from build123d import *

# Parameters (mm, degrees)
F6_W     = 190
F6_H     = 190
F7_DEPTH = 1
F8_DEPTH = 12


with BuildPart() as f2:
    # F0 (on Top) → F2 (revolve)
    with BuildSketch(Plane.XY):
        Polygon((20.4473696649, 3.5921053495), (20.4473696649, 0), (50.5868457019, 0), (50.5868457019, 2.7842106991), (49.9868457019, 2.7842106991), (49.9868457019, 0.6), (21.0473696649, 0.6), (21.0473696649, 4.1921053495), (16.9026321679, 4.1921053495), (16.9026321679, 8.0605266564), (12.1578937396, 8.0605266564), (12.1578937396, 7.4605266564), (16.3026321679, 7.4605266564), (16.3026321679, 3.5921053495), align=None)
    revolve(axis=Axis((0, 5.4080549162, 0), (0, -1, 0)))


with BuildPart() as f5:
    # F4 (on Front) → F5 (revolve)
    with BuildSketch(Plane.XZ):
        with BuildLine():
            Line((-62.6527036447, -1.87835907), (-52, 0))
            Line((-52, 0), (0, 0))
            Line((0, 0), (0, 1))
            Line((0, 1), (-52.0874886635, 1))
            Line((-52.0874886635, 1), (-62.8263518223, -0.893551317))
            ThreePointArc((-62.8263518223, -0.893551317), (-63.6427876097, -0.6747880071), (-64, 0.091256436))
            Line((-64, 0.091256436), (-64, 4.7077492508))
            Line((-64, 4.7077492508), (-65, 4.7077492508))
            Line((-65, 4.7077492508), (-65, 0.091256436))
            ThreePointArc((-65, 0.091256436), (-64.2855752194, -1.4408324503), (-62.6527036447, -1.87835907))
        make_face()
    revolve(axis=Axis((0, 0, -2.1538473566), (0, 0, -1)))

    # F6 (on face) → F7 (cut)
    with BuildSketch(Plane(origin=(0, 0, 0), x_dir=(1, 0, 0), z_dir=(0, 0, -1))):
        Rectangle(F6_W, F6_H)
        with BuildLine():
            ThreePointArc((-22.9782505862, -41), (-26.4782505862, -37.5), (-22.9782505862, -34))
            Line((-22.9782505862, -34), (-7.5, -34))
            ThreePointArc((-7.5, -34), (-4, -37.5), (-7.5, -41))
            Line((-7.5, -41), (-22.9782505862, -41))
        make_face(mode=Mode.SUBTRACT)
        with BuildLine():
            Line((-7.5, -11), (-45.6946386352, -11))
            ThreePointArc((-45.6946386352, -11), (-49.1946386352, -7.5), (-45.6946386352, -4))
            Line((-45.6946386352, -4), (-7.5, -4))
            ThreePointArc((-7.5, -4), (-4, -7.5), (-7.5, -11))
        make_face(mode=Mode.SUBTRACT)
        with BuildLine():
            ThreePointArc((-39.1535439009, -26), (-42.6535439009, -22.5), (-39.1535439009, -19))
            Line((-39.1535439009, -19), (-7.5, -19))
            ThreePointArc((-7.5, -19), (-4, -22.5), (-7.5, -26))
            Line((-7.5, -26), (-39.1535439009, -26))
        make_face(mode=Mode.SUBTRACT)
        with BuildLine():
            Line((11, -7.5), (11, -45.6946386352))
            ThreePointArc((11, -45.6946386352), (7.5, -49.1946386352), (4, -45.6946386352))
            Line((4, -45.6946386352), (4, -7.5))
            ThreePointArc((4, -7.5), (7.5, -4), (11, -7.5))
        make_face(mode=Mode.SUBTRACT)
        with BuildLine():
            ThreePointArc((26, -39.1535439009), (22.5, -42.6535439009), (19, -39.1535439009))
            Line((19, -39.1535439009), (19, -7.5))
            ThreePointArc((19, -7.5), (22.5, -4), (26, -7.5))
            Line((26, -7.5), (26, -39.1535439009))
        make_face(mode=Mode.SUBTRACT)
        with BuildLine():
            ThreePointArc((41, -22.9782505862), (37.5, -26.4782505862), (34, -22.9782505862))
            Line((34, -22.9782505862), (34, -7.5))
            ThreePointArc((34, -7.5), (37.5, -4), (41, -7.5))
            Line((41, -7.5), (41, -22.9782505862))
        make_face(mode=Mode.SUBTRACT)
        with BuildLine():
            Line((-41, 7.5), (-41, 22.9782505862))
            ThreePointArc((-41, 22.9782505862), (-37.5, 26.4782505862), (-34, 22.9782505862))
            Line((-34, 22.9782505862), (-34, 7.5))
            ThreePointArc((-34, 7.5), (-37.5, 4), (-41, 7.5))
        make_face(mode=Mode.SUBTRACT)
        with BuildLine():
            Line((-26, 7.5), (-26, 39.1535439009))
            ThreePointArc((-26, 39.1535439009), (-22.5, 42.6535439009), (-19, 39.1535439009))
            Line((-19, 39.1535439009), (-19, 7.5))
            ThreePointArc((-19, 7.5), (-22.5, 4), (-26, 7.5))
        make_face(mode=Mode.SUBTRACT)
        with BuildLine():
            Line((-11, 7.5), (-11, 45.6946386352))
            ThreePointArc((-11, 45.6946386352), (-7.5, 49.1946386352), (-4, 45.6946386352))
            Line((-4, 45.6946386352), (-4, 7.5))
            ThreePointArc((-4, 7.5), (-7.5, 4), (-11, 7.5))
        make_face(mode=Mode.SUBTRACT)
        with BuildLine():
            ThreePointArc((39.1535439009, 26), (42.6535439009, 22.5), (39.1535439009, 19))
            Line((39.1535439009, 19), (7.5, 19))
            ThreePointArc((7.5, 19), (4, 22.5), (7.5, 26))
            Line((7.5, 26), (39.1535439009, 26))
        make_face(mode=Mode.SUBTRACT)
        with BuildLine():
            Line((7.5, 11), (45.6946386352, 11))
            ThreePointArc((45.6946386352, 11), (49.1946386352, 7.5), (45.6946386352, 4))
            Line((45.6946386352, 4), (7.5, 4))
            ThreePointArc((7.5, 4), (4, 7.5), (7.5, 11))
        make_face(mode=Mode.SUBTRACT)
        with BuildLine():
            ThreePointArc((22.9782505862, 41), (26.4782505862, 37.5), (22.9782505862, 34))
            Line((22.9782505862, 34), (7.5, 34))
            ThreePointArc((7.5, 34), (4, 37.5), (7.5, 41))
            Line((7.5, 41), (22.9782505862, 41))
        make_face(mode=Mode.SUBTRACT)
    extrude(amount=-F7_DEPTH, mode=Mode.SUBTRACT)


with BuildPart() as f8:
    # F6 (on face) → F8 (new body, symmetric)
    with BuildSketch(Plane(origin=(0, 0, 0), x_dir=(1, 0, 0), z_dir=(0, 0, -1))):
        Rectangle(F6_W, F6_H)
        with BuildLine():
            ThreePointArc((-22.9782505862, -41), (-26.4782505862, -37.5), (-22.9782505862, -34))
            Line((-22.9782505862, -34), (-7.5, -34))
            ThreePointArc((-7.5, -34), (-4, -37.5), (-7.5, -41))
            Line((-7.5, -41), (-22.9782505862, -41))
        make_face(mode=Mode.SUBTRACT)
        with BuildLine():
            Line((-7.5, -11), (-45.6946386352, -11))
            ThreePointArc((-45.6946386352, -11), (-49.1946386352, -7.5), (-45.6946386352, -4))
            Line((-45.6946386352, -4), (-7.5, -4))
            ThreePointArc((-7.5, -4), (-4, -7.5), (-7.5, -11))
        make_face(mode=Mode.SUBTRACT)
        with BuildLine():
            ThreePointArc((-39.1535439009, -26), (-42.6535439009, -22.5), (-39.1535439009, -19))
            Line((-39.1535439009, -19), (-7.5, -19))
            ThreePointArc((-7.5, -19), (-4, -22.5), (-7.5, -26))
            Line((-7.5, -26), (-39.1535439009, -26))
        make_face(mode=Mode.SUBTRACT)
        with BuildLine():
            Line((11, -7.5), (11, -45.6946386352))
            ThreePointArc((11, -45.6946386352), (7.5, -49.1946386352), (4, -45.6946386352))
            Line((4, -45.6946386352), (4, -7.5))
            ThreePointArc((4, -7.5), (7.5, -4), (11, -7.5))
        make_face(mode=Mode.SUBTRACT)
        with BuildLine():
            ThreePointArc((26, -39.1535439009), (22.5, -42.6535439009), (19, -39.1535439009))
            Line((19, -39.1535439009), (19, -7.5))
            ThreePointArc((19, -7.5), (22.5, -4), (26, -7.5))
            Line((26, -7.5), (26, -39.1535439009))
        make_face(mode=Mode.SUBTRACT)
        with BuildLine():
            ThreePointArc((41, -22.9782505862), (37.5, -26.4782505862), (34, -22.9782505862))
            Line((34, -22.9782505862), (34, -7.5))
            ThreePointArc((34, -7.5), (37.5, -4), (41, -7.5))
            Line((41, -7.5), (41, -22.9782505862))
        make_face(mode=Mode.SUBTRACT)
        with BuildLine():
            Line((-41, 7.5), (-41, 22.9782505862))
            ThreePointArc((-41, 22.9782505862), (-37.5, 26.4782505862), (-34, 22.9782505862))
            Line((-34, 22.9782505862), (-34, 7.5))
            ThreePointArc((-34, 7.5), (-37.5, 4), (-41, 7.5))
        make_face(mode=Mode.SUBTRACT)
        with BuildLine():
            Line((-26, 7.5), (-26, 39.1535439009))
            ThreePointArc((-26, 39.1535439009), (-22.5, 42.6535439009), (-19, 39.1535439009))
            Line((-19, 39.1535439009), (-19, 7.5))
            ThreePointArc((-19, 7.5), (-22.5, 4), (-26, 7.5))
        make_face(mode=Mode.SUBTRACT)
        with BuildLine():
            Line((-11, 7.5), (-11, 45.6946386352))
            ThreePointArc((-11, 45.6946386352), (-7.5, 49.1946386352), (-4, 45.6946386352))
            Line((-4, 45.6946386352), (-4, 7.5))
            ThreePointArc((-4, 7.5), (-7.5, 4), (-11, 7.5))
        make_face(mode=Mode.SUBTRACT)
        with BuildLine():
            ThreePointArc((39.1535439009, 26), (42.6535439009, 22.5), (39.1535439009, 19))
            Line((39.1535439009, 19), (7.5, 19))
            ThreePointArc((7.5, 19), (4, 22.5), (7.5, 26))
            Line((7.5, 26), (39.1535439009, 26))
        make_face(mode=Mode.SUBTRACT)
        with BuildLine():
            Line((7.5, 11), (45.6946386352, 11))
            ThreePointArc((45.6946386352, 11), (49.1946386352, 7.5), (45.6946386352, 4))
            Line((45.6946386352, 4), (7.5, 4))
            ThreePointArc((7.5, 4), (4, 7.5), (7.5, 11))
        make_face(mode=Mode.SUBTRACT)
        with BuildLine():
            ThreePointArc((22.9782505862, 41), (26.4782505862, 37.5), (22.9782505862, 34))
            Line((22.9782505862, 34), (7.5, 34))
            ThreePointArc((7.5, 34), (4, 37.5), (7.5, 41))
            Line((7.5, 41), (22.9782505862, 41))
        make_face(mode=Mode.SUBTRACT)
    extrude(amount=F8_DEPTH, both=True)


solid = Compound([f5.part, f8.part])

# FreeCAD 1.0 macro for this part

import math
import FreeCAD as App
import Part
import Sketcher
Q = App.Units.Quantity


def add_polygon(sketch, points):
    """Adds a closed chain of lines whose ends are joined by coincident constraints."""
    first, n = sketch.GeometryCount, len(points)
    for a, b in zip(points, points[1:] + points[:1]):
        sketch.addGeometry(Part.LineSegment(App.Vector(*a, 0), App.Vector(*b, 0)), False)
    for i in range(n):
        sketch.addConstraint(Sketcher.Constraint("Coincident", first + i, 2, first + (i + 1) % n, 1))

doc = App.newDocument("Part")
body = doc.addObject("PartDesign::Body", "Body")

# Sketch on XY plane
sketch1 = doc.addObject("Sketcher::SketchObject", "Sketch")
body.addObject(sketch1)
sketch1.AttachmentSupport = (doc.XY_Plane, [""])
sketch1.MapMode = "FlatFace"
add_polygon(sketch1, [(20.4, 3.6), (20.4, 0), (50.6, 0), (50.6, 2.8), (50, 2.8), (50, 0.6), (21, 0.6), (21, 4.2), (16.9, 4.2), (16.9, 8.1), (12.2, 8.1), (12.2, 7.5), (16.3, 7.5), (16.3, 3.6)])  # lines 0-13
sketch1.addConstraint([
    Sketcher.Constraint("Vertical", 0),
    Sketcher.Constraint("Horizontal", 1),
    Sketcher.Constraint("Vertical", 2),
    Sketcher.Constraint("Horizontal", 3),
    Sketcher.Constraint("Vertical", 4),
    Sketcher.Constraint("Horizontal", 5),
    Sketcher.Constraint("Vertical", 6),
    Sketcher.Constraint("Horizontal", 7),
    Sketcher.Constraint("Vertical", 8),
    Sketcher.Constraint("Horizontal", 9),
    Sketcher.Constraint("Vertical", 10),
    Sketcher.Constraint("Horizontal", 11),
    Sketcher.Constraint("Vertical", 12),
    Sketcher.Constraint("Horizontal", 13),
    Sketcher.Constraint("PointOnObject", 0, 2, -1),
    Sketcher.Constraint("Equal", 7, 11),
    Sketcher.Constraint("Equal", 11, 13),
    Sketcher.Constraint("Equal", 0, 6),
    Sketcher.Constraint("Equal", 3, 10),
    Sketcher.Constraint("Equal", 8, 12),
    Sketcher.Constraint("DistanceX", 3, 2, 3, 1, 0.6),
    Sketcher.Constraint("DistanceX", 0, 2, 5, 2, 0.6),
    Sketcher.Constraint("DistanceX", 9, 2, 9, 1, 4.744738),
    Sketcher.Constraint("DistanceY", 2, 1, 2, 2, 2.784211),
    Sketcher.Constraint("DistanceY", 8, 1, 8, 2, 3.868421),
    Sketcher.Constraint("DistanceX", 1, 1, 1, 2, 30.139476),
    Sketcher.Constraint("DistanceY", 0, 2, 0, 1, 3.592105),
    Sketcher.Constraint("DistanceX", -1, 1, 0, 2, 20.44737),
])
revolution = doc.addObject("PartDesign::Revolution", "Revolution")
body.addObject(revolution)
revolution.Profile = sketch1
revolution.ReferenceAxis = (sketch1, ["V_Axis"])
revolution.Angle = 360
body2 = doc.addObject("PartDesign::Body", "Body001")
body2.AllowCompound = True

# Sketch on XZ plane
sketch2 = doc.addObject("Sketcher::SketchObject", "Sketch001")
body2.addObject(sketch2)
sketch2.AttachmentSupport = (doc.getObject("XZ_Plane001"), [""])
sketch2.MapMode = "FlatFace"
sketch2.addGeometry([
    Part.LineSegment(App.Vector(-62.7, -1.9, 0), App.Vector(-52, 0, 0)),  # 0
    Part.LineSegment(App.Vector(-52, 0, 0), App.Vector(0, 0, 0)),  # 1
    Part.LineSegment(App.Vector(0, 0, 0), App.Vector(0, 1, 0)),  # 2
    Part.LineSegment(App.Vector(0, 1, 0), App.Vector(-52.1, 1, 0)),  # 3
    Part.LineSegment(App.Vector(-52.1, 1, 0), App.Vector(-62.8, -0.9, 0)),  # 4
    Part.ArcOfCircle(Part.Circle(App.Vector(-63, 0.1, 0), App.Vector(0, 0, 1), 1), math.radians(180), math.radians(280)),  # 5
    Part.LineSegment(App.Vector(-64, 0.1, 0), App.Vector(-64, 4.7, 0)),  # 6
    Part.LineSegment(App.Vector(-64, 4.7, 0), App.Vector(-65, 4.7, 0)),  # 7
    Part.LineSegment(App.Vector(-65, 4.7, 0), App.Vector(-65, 0.1, 0)),  # 8
    Part.ArcOfCircle(Part.Circle(App.Vector(-63, 0.1, 0), App.Vector(0, 0, 1), 2), math.radians(180), math.radians(280)),  # 9
], False)
sketch2.addConstraint([
    Sketcher.Constraint("Coincident", 0, 2, 1, 1),
    Sketcher.Constraint("Coincident", 1, 2, 2, 1),
    Sketcher.Constraint("Coincident", 2, 2, 3, 1),
    Sketcher.Constraint("Coincident", 3, 2, 4, 1),
    Sketcher.Constraint("Tangent", 4, 2, 5, 2),
    Sketcher.Constraint("Tangent", 5, 1, 6, 1),
    Sketcher.Constraint("Coincident", 6, 2, 7, 1),
    Sketcher.Constraint("Coincident", 7, 2, 8, 1),
    Sketcher.Constraint("Tangent", 8, 2, 9, 1),
    Sketcher.Constraint("Tangent", 9, 2, 0, 1),
    Sketcher.Constraint("Horizontal", 1),
    Sketcher.Constraint("Vertical", 2),
    Sketcher.Constraint("Horizontal", 3),
    Sketcher.Constraint("Vertical", 6),
    Sketcher.Constraint("Horizontal", 7),
    Sketcher.Constraint("Vertical", 8),
    Sketcher.Constraint("Coincident", 1, 2, -1, 1),
    Sketcher.Constraint("Coincident", 9, 3, 5, 3),
    Sketcher.Constraint("Parallel", 0, 4),
    Sketcher.Constraint("Equal", 7, 2),
    Sketcher.Constraint("Radius", 5, 1.0),
    Sketcher.Constraint("Radius", 9, 2.0),
    Sketcher.Constraint("DistanceX", 1, 1, 1, 2, 52.0),
    Sketcher.Constraint("Angle", 0, Q("10 deg")),
    Sketcher.Constraint("DistanceX", 5, 3, -1, 1, 63.0),
    Sketcher.Constraint("DistanceY", 4, 2, 6, 2, 5.601301),
])
revolution2 = doc.addObject("PartDesign::Revolution", "Revolution001")
body2.addObject(revolution2)
revolution2.Profile = sketch2
revolution2.ReferenceAxis = (sketch2, ["V_Axis"])
revolution2.Angle = 360

# Sketch on XY plane
sketch3 = doc.addObject("Sketcher::SketchObject", "Sketch002")
body2.addObject(sketch3)
sketch3.AttachmentSupport = (doc.getObject("XY_Plane001"), [""])
sketch3.MapMode = "FlatFace"
add_polygon(sketch3, [(-95, -95), (-95, 95), (95, 95), (95, -95)])  # lines 0-3
sketch3.addGeometry(Part.LineSegment(App.Vector(-7.5, 41, 0), App.Vector(-23, 41, 0)), False)  # 4
sketch3.addGeometry(Part.ArcOfCircle(Part.Circle(App.Vector(-23, 37.5, 0), App.Vector(0, 0, 1), 3.5), math.radians(90), math.radians(270)), False)  # 5
sketch3.addGeometry(Part.LineSegment(App.Vector(-23, 34, 0), App.Vector(-7.5, 34, 0)), False)  # 6
sketch3.addGeometry(Part.ArcOfCircle(Part.Circle(App.Vector(-7.5, 37.5, 0), App.Vector(0, 0, 1), 3.5), math.radians(-90), math.radians(90)), False)  # 7
sketch3.addGeometry(Part.ArcOfCircle(Part.Circle(App.Vector(-7.5, 7.5, 0), App.Vector(0, 0, 1), 3.5), math.radians(-90), math.radians(90)), False)  # 8
sketch3.addGeometry(Part.LineSegment(App.Vector(-7.5, 11, 0), App.Vector(-45.7, 11, 0)), False)  # 9
sketch3.addGeometry(Part.ArcOfCircle(Part.Circle(App.Vector(-45.7, 7.5, 0), App.Vector(0, 0, 1), 3.5), math.radians(90), math.radians(270)), False)  # 10
sketch3.addGeometry(Part.LineSegment(App.Vector(-45.7, 4, 0), App.Vector(-7.5, 4, 0)), False)  # 11
sketch3.addGeometry(Part.LineSegment(App.Vector(-7.5, 26, 0), App.Vector(-39.2, 26, 0)), False)  # 12
sketch3.addGeometry(Part.ArcOfCircle(Part.Circle(App.Vector(-39.2, 22.5, 0), App.Vector(0, 0, 1), 3.5), math.radians(90), math.radians(270)), False)  # 13
sketch3.addGeometry(Part.LineSegment(App.Vector(-39.2, 19, 0), App.Vector(-7.5, 19, 0)), False)  # 14
sketch3.addGeometry(Part.ArcOfCircle(Part.Circle(App.Vector(-7.5, 22.5, 0), App.Vector(0, 0, 1), 3.5), math.radians(-90), math.radians(90)), False)  # 15
sketch3.addGeometry(Part.ArcOfCircle(Part.Circle(App.Vector(7.5, 7.5, 0), App.Vector(0, 0, 1), 3.5), math.radians(180), math.radians(360)), False)  # 16
sketch3.addGeometry(Part.LineSegment(App.Vector(11, 7.5, 0), App.Vector(11, 45.7, 0)), False)  # 17
sketch3.addGeometry(Part.ArcOfCircle(Part.Circle(App.Vector(7.5, 45.7, 0), App.Vector(0, 0, 1), 3.5), math.radians(0), math.radians(180)), False)  # 18
sketch3.addGeometry(Part.LineSegment(App.Vector(4, 45.7, 0), App.Vector(4, 7.5, 0)), False)  # 19
sketch3.addGeometry(Part.LineSegment(App.Vector(26, 7.5, 0), App.Vector(26, 39.2, 0)), False)  # 20
sketch3.addGeometry(Part.ArcOfCircle(Part.Circle(App.Vector(22.5, 39.2, 0), App.Vector(0, 0, 1), 3.5), math.radians(0), math.radians(180)), False)  # 21
sketch3.addGeometry(Part.LineSegment(App.Vector(19, 39.2, 0), App.Vector(19, 7.5, 0)), False)  # 22
sketch3.addGeometry(Part.ArcOfCircle(Part.Circle(App.Vector(22.5, 7.5, 0), App.Vector(0, 0, 1), 3.5), math.radians(180), math.radians(360)), False)  # 23
sketch3.addGeometry(Part.LineSegment(App.Vector(41, 7.5, 0), App.Vector(41, 23, 0)), False)  # 24
sketch3.addGeometry(Part.ArcOfCircle(Part.Circle(App.Vector(37.5, 23, 0), App.Vector(0, 0, 1), 3.5), math.radians(0), math.radians(180)), False)  # 25
sketch3.addGeometry(Part.LineSegment(App.Vector(34, 23, 0), App.Vector(34, 7.5, 0)), False)  # 26
sketch3.addGeometry(Part.ArcOfCircle(Part.Circle(App.Vector(37.5, 7.5, 0), App.Vector(0, 0, 1), 3.5), math.radians(180), math.radians(360)), False)  # 27
sketch3.addGeometry(Part.ArcOfCircle(Part.Circle(App.Vector(-37.5, -7.5, 0), App.Vector(0, 0, 1), 3.5), math.radians(0), math.radians(180)), False)  # 28
sketch3.addGeometry(Part.LineSegment(App.Vector(-41, -7.5, 0), App.Vector(-41, -23, 0)), False)  # 29
sketch3.addGeometry(Part.ArcOfCircle(Part.Circle(App.Vector(-37.5, -23, 0), App.Vector(0, 0, 1), 3.5), math.radians(180), math.radians(360)), False)  # 30
sketch3.addGeometry(Part.LineSegment(App.Vector(-34, -23, 0), App.Vector(-34, -7.5, 0)), False)  # 31
sketch3.addGeometry(Part.ArcOfCircle(Part.Circle(App.Vector(-22.5, -7.5, 0), App.Vector(0, 0, 1), 3.5), math.radians(0), math.radians(180)), False)  # 32
sketch3.addGeometry(Part.LineSegment(App.Vector(-26, -7.5, 0), App.Vector(-26, -39.2, 0)), False)  # 33
sketch3.addGeometry(Part.ArcOfCircle(Part.Circle(App.Vector(-22.5, -39.2, 0), App.Vector(0, 0, 1), 3.5), math.radians(180), math.radians(360)), False)  # 34
sketch3.addGeometry(Part.LineSegment(App.Vector(-19, -39.2, 0), App.Vector(-19, -7.5, 0)), False)  # 35
sketch3.addGeometry(Part.ArcOfCircle(Part.Circle(App.Vector(-7.5, -7.5, 0), App.Vector(0, 0, 1), 3.5), math.radians(0), math.radians(180)), False)  # 36
sketch3.addGeometry(Part.LineSegment(App.Vector(-11, -7.5, 0), App.Vector(-11, -45.7, 0)), False)  # 37
sketch3.addGeometry(Part.ArcOfCircle(Part.Circle(App.Vector(-7.5, -45.7, 0), App.Vector(0, 0, 1), 3.5), math.radians(180), math.radians(360)), False)  # 38
sketch3.addGeometry(Part.LineSegment(App.Vector(-4, -45.7, 0), App.Vector(-4, -7.5, 0)), False)  # 39
sketch3.addGeometry(Part.LineSegment(App.Vector(7.5, -26, 0), App.Vector(39.2, -26, 0)), False)  # 40
sketch3.addGeometry(Part.ArcOfCircle(Part.Circle(App.Vector(39.2, -22.5, 0), App.Vector(0, 0, 1), 3.5), math.radians(-90), math.radians(90)), False)  # 41
sketch3.addGeometry(Part.LineSegment(App.Vector(39.2, -19, 0), App.Vector(7.5, -19, 0)), False)  # 42
sketch3.addGeometry(Part.ArcOfCircle(Part.Circle(App.Vector(7.5, -22.5, 0), App.Vector(0, 0, 1), 3.5), math.radians(90), math.radians(270)), False)  # 43
sketch3.addGeometry(Part.ArcOfCircle(Part.Circle(App.Vector(7.5, -7.5, 0), App.Vector(0, 0, 1), 3.5), math.radians(90), math.radians(270)), False)  # 44
sketch3.addGeometry(Part.LineSegment(App.Vector(7.5, -11, 0), App.Vector(45.7, -11, 0)), False)  # 45
sketch3.addGeometry(Part.ArcOfCircle(Part.Circle(App.Vector(45.7, -7.5, 0), App.Vector(0, 0, 1), 3.5), math.radians(-90), math.radians(90)), False)  # 46
sketch3.addGeometry(Part.LineSegment(App.Vector(45.7, -4, 0), App.Vector(7.5, -4, 0)), False)  # 47
sketch3.addGeometry(Part.LineSegment(App.Vector(7.5, -41, 0), App.Vector(23, -41, 0)), False)  # 48
sketch3.addGeometry(Part.ArcOfCircle(Part.Circle(App.Vector(23, -37.5, 0), App.Vector(0, 0, 1), 3.5), math.radians(-90), math.radians(90)), False)  # 49
sketch3.addGeometry(Part.LineSegment(App.Vector(23, -34, 0), App.Vector(7.5, -34, 0)), False)  # 50
sketch3.addGeometry(Part.ArcOfCircle(Part.Circle(App.Vector(7.5, -37.5, 0), App.Vector(0, 0, 1), 3.5), math.radians(90), math.radians(270)), False)  # 51
sketch3.addConstraint([
    Sketcher.Constraint("Tangent", 4, 2, 5, 1),
    Sketcher.Constraint("Tangent", 5, 2, 6, 1),
    Sketcher.Constraint("Tangent", 6, 2, 7, 1),
    Sketcher.Constraint("Tangent", 7, 2, 4, 1),
    Sketcher.Constraint("Tangent", 8, 2, 9, 1),
    Sketcher.Constraint("Tangent", 9, 2, 10, 1),
    Sketcher.Constraint("Tangent", 10, 2, 11, 1),
    Sketcher.Constraint("Tangent", 11, 2, 8, 1),
    Sketcher.Constraint("Tangent", 12, 2, 13, 1),
    Sketcher.Constraint("Tangent", 13, 2, 14, 1),
    Sketcher.Constraint("Tangent", 14, 2, 15, 1),
    Sketcher.Constraint("Tangent", 15, 2, 12, 1),
    Sketcher.Constraint("Tangent", 16, 2, 17, 1),
    Sketcher.Constraint("Tangent", 17, 2, 18, 1),
    Sketcher.Constraint("Tangent", 18, 2, 19, 1),
    Sketcher.Constraint("Tangent", 19, 2, 16, 1),
    Sketcher.Constraint("Tangent", 20, 2, 21, 1),
    Sketcher.Constraint("Tangent", 21, 2, 22, 1),
    Sketcher.Constraint("Tangent", 22, 2, 23, 1),
    Sketcher.Constraint("Tangent", 23, 2, 20, 1),
    Sketcher.Constraint("Tangent", 24, 2, 25, 1),
    Sketcher.Constraint("Tangent", 25, 2, 26, 1),
    Sketcher.Constraint("Tangent", 26, 2, 27, 1),
    Sketcher.Constraint("Tangent", 27, 2, 24, 1),
    Sketcher.Constraint("Tangent", 28, 2, 29, 1),
    Sketcher.Constraint("Tangent", 29, 2, 30, 1),
    Sketcher.Constraint("Tangent", 30, 2, 31, 1),
    Sketcher.Constraint("Tangent", 31, 2, 28, 1),
    Sketcher.Constraint("Tangent", 32, 2, 33, 1),
    Sketcher.Constraint("Tangent", 33, 2, 34, 1),
    Sketcher.Constraint("Tangent", 34, 2, 35, 1),
    Sketcher.Constraint("Tangent", 35, 2, 32, 1),
    Sketcher.Constraint("Tangent", 36, 2, 37, 1),
    Sketcher.Constraint("Tangent", 37, 2, 38, 1),
    Sketcher.Constraint("Tangent", 38, 2, 39, 1),
    Sketcher.Constraint("Tangent", 39, 2, 36, 1),
    Sketcher.Constraint("Tangent", 40, 2, 41, 1),
    Sketcher.Constraint("Tangent", 41, 2, 42, 1),
    Sketcher.Constraint("Tangent", 42, 2, 43, 1),
    Sketcher.Constraint("Tangent", 43, 2, 40, 1),
    Sketcher.Constraint("Tangent", 44, 2, 45, 1),
    Sketcher.Constraint("Tangent", 45, 2, 46, 1),
    Sketcher.Constraint("Tangent", 46, 2, 47, 1),
    Sketcher.Constraint("Tangent", 47, 2, 44, 1),
    Sketcher.Constraint("Tangent", 48, 2, 49, 1),
    Sketcher.Constraint("Tangent", 49, 2, 50, 1),
    Sketcher.Constraint("Tangent", 50, 2, 51, 1),
    Sketcher.Constraint("Tangent", 51, 2, 48, 1),
    Sketcher.Constraint("Vertical", 0),
    Sketcher.Constraint("Horizontal", 1),
    Sketcher.Constraint("Vertical", 2),
    Sketcher.Constraint("Horizontal", 3),
    Sketcher.Constraint("Horizontal", 4),
    Sketcher.Constraint("Horizontal", 6),
    Sketcher.Constraint("Horizontal", 9),
    Sketcher.Constraint("Horizontal", 11),
    Sketcher.Constraint("Horizontal", 12),
    Sketcher.Constraint("Horizontal", 14),
    Sketcher.Constraint("Vertical", 17),
    Sketcher.Constraint("Vertical", 19),
    Sketcher.Constraint("Vertical", 20),
    Sketcher.Constraint("Vertical", 22),
    Sketcher.Constraint("Vertical", 24),
    Sketcher.Constraint("Vertical", 26),
    Sketcher.Constraint("Vertical", 29),
    Sketcher.Constraint("Vertical", 31),
    Sketcher.Constraint("Vertical", 33),
    Sketcher.Constraint("Vertical", 35),
    Sketcher.Constraint("Vertical", 37),
    Sketcher.Constraint("Vertical", 39),
    Sketcher.Constraint("Horizontal", 40),
    Sketcher.Constraint("Horizontal", 42),
    Sketcher.Constraint("Horizontal", 45),
    Sketcher.Constraint("Horizontal", 47),
    Sketcher.Constraint("Horizontal", 48),
    Sketcher.Constraint("Horizontal", 50),
    Sketcher.Constraint("Equal", 7, 8),
    Sketcher.Constraint("Equal", 10, 13),
    Sketcher.Constraint("Equal", 15, 16),
    Sketcher.Constraint("Equal", 18, 21),
    Sketcher.Constraint("Equal", 23, 25),
    Sketcher.Constraint("Equal", 27, 28),
    Sketcher.Constraint("Equal", 30, 32),
    Sketcher.Constraint("Equal", 34, 36),
    Sketcher.Constraint("Equal", 38, 41),
    Sketcher.Constraint("Equal", 43, 44),
    Sketcher.Constraint("Equal", 46, 49),
    Sketcher.Constraint("Symmetric", 27, 3, 28, 3, -1, 1),
    Sketcher.Constraint("Symmetric", 23, 3, 32, 3, -1, 1),
    Sketcher.Constraint("Symmetric", 16, 3, 36, 3, -1, 1),
    Sketcher.Constraint("Symmetric", 13, 3, 41, 3, -1, 1),
    Sketcher.Constraint("Symmetric", 8, 3, 44, 3, -1, 1),
    Sketcher.Constraint("Symmetric", 5, 3, 49, 3, -1, 1),
    Sketcher.Constraint("Symmetric", 0, 2, 2, 2, -1, 1),
    Sketcher.Constraint("Symmetric", 8, 3, 16, 3, -2),
    Sketcher.Constraint("Horizontal", 16, 3, 23, 3),
    Sketcher.Constraint("Horizontal", 23, 3, 27, 3),
    Sketcher.Constraint("Vertical", 7, 3, 8, 3),
    Sketcher.Constraint("Vertical", 8, 3, 15, 3),
    Sketcher.Constraint("Vertical", 18, 3, 43, 3),
    Sketcher.Constraint("Vertical", 44, 3, 51, 3),
    Sketcher.Constraint("Equal", 11, 45),
    Sketcher.Constraint("Equal", 3, 0),
    Sketcher.Constraint("Equal", 47, 17),
    Sketcher.Constraint("Equal", 42, 20),
    Sketcher.Constraint("Equal", 50, 24),
    Sketcher.Constraint("Equal", 26, 29),
    Sketcher.Constraint("Equal", 22, 33),
    Sketcher.Constraint("Equal", 19, 37),
    Sketcher.Constraint("Radius", 5, 3.5),
    Sketcher.Constraint("DistanceX", 1, 1, 1, 2, 190.0),
    Sketcher.Constraint("DistanceY", -1, 1, 4, 2, 41.0),
    Sketcher.Constraint("DistanceY", -1, 1, 8, 2, 11.0),
    Sketcher.Constraint("DistanceY", -1, 1, 12, 2, 26.0),
    Sketcher.Constraint("DistanceX", -1, 1, 16, 2, 11.0),
    Sketcher.Constraint("DistanceX", -1, 1, 20, 2, 26.0),
    Sketcher.Constraint("DistanceX", -1, 1, 24, 2, 41.0),
    Sketcher.Constraint("DistanceX", 4, 2, 4, 1, 15.478251),
    Sketcher.Constraint("DistanceX", 9, 2, 9, 1, 38.194639),
    Sketcher.Constraint("DistanceX", 12, 2, 12, 1, 31.653544),
])
pocket1 = doc.addObject("PartDesign::Pocket", "Pocket")
body2.addObject(pocket1)
pocket1.Profile = sketch3
pocket1.Length = 1
pocket1.Reversed = True
body3 = doc.addObject("PartDesign::Body", "Body002")

# Sketch on XY plane
sketch4 = doc.addObject("Sketcher::SketchObject", "Sketch003")
body3.addObject(sketch4)
sketch4.AttachmentSupport = (doc.getObject("XY_Plane002"), [""])
sketch4.MapMode = "FlatFace"
add_polygon(sketch4, [(-95, -95), (-95, 95), (95, 95), (95, -95)])  # lines 0-3
sketch4.addGeometry(Part.LineSegment(App.Vector(-7.5, 41, 0), App.Vector(-23, 41, 0)), False)  # 4
sketch4.addGeometry(Part.ArcOfCircle(Part.Circle(App.Vector(-23, 37.5, 0), App.Vector(0, 0, 1), 3.5), math.radians(90), math.radians(270)), False)  # 5
sketch4.addGeometry(Part.LineSegment(App.Vector(-23, 34, 0), App.Vector(-7.5, 34, 0)), False)  # 6
sketch4.addGeometry(Part.ArcOfCircle(Part.Circle(App.Vector(-7.5, 37.5, 0), App.Vector(0, 0, 1), 3.5), math.radians(-90), math.radians(90)), False)  # 7
sketch4.addGeometry(Part.ArcOfCircle(Part.Circle(App.Vector(-7.5, 7.5, 0), App.Vector(0, 0, 1), 3.5), math.radians(-90), math.radians(90)), False)  # 8
sketch4.addGeometry(Part.LineSegment(App.Vector(-7.5, 11, 0), App.Vector(-45.7, 11, 0)), False)  # 9
sketch4.addGeometry(Part.ArcOfCircle(Part.Circle(App.Vector(-45.7, 7.5, 0), App.Vector(0, 0, 1), 3.5), math.radians(90), math.radians(270)), False)  # 10
sketch4.addGeometry(Part.LineSegment(App.Vector(-45.7, 4, 0), App.Vector(-7.5, 4, 0)), False)  # 11
sketch4.addGeometry(Part.LineSegment(App.Vector(-7.5, 26, 0), App.Vector(-39.2, 26, 0)), False)  # 12
sketch4.addGeometry(Part.ArcOfCircle(Part.Circle(App.Vector(-39.2, 22.5, 0), App.Vector(0, 0, 1), 3.5), math.radians(90), math.radians(270)), False)  # 13
sketch4.addGeometry(Part.LineSegment(App.Vector(-39.2, 19, 0), App.Vector(-7.5, 19, 0)), False)  # 14
sketch4.addGeometry(Part.ArcOfCircle(Part.Circle(App.Vector(-7.5, 22.5, 0), App.Vector(0, 0, 1), 3.5), math.radians(-90), math.radians(90)), False)  # 15
sketch4.addGeometry(Part.ArcOfCircle(Part.Circle(App.Vector(7.5, 7.5, 0), App.Vector(0, 0, 1), 3.5), math.radians(180), math.radians(360)), False)  # 16
sketch4.addGeometry(Part.LineSegment(App.Vector(11, 7.5, 0), App.Vector(11, 45.7, 0)), False)  # 17
sketch4.addGeometry(Part.ArcOfCircle(Part.Circle(App.Vector(7.5, 45.7, 0), App.Vector(0, 0, 1), 3.5), math.radians(0), math.radians(180)), False)  # 18
sketch4.addGeometry(Part.LineSegment(App.Vector(4, 45.7, 0), App.Vector(4, 7.5, 0)), False)  # 19
sketch4.addGeometry(Part.LineSegment(App.Vector(26, 7.5, 0), App.Vector(26, 39.2, 0)), False)  # 20
sketch4.addGeometry(Part.ArcOfCircle(Part.Circle(App.Vector(22.5, 39.2, 0), App.Vector(0, 0, 1), 3.5), math.radians(0), math.radians(180)), False)  # 21
sketch4.addGeometry(Part.LineSegment(App.Vector(19, 39.2, 0), App.Vector(19, 7.5, 0)), False)  # 22
sketch4.addGeometry(Part.ArcOfCircle(Part.Circle(App.Vector(22.5, 7.5, 0), App.Vector(0, 0, 1), 3.5), math.radians(180), math.radians(360)), False)  # 23
sketch4.addGeometry(Part.LineSegment(App.Vector(41, 7.5, 0), App.Vector(41, 23, 0)), False)  # 24
sketch4.addGeometry(Part.ArcOfCircle(Part.Circle(App.Vector(37.5, 23, 0), App.Vector(0, 0, 1), 3.5), math.radians(0), math.radians(180)), False)  # 25
sketch4.addGeometry(Part.LineSegment(App.Vector(34, 23, 0), App.Vector(34, 7.5, 0)), False)  # 26
sketch4.addGeometry(Part.ArcOfCircle(Part.Circle(App.Vector(37.5, 7.5, 0), App.Vector(0, 0, 1), 3.5), math.radians(180), math.radians(360)), False)  # 27
sketch4.addGeometry(Part.ArcOfCircle(Part.Circle(App.Vector(-37.5, -7.5, 0), App.Vector(0, 0, 1), 3.5), math.radians(0), math.radians(180)), False)  # 28
sketch4.addGeometry(Part.LineSegment(App.Vector(-41, -7.5, 0), App.Vector(-41, -23, 0)), False)  # 29
sketch4.addGeometry(Part.ArcOfCircle(Part.Circle(App.Vector(-37.5, -23, 0), App.Vector(0, 0, 1), 3.5), math.radians(180), math.radians(360)), False)  # 30
sketch4.addGeometry(Part.LineSegment(App.Vector(-34, -23, 0), App.Vector(-34, -7.5, 0)), False)  # 31
sketch4.addGeometry(Part.ArcOfCircle(Part.Circle(App.Vector(-22.5, -7.5, 0), App.Vector(0, 0, 1), 3.5), math.radians(0), math.radians(180)), False)  # 32
sketch4.addGeometry(Part.LineSegment(App.Vector(-26, -7.5, 0), App.Vector(-26, -39.2, 0)), False)  # 33
sketch4.addGeometry(Part.ArcOfCircle(Part.Circle(App.Vector(-22.5, -39.2, 0), App.Vector(0, 0, 1), 3.5), math.radians(180), math.radians(360)), False)  # 34
sketch4.addGeometry(Part.LineSegment(App.Vector(-19, -39.2, 0), App.Vector(-19, -7.5, 0)), False)  # 35
sketch4.addGeometry(Part.ArcOfCircle(Part.Circle(App.Vector(-7.5, -7.5, 0), App.Vector(0, 0, 1), 3.5), math.radians(0), math.radians(180)), False)  # 36
sketch4.addGeometry(Part.LineSegment(App.Vector(-11, -7.5, 0), App.Vector(-11, -45.7, 0)), False)  # 37
sketch4.addGeometry(Part.ArcOfCircle(Part.Circle(App.Vector(-7.5, -45.7, 0), App.Vector(0, 0, 1), 3.5), math.radians(180), math.radians(360)), False)  # 38
sketch4.addGeometry(Part.LineSegment(App.Vector(-4, -45.7, 0), App.Vector(-4, -7.5, 0)), False)  # 39
sketch4.addGeometry(Part.LineSegment(App.Vector(7.5, -26, 0), App.Vector(39.2, -26, 0)), False)  # 40
sketch4.addGeometry(Part.ArcOfCircle(Part.Circle(App.Vector(39.2, -22.5, 0), App.Vector(0, 0, 1), 3.5), math.radians(-90), math.radians(90)), False)  # 41
sketch4.addGeometry(Part.LineSegment(App.Vector(39.2, -19, 0), App.Vector(7.5, -19, 0)), False)  # 42
sketch4.addGeometry(Part.ArcOfCircle(Part.Circle(App.Vector(7.5, -22.5, 0), App.Vector(0, 0, 1), 3.5), math.radians(90), math.radians(270)), False)  # 43
sketch4.addGeometry(Part.ArcOfCircle(Part.Circle(App.Vector(7.5, -7.5, 0), App.Vector(0, 0, 1), 3.5), math.radians(90), math.radians(270)), False)  # 44
sketch4.addGeometry(Part.LineSegment(App.Vector(7.5, -11, 0), App.Vector(45.7, -11, 0)), False)  # 45
sketch4.addGeometry(Part.ArcOfCircle(Part.Circle(App.Vector(45.7, -7.5, 0), App.Vector(0, 0, 1), 3.5), math.radians(-90), math.radians(90)), False)  # 46
sketch4.addGeometry(Part.LineSegment(App.Vector(45.7, -4, 0), App.Vector(7.5, -4, 0)), False)  # 47
sketch4.addGeometry(Part.LineSegment(App.Vector(7.5, -41, 0), App.Vector(23, -41, 0)), False)  # 48
sketch4.addGeometry(Part.ArcOfCircle(Part.Circle(App.Vector(23, -37.5, 0), App.Vector(0, 0, 1), 3.5), math.radians(-90), math.radians(90)), False)  # 49
sketch4.addGeometry(Part.LineSegment(App.Vector(23, -34, 0), App.Vector(7.5, -34, 0)), False)  # 50
sketch4.addGeometry(Part.ArcOfCircle(Part.Circle(App.Vector(7.5, -37.5, 0), App.Vector(0, 0, 1), 3.5), math.radians(90), math.radians(270)), False)  # 51
sketch4.addConstraint([
    Sketcher.Constraint("Tangent", 4, 2, 5, 1),
    Sketcher.Constraint("Tangent", 5, 2, 6, 1),
    Sketcher.Constraint("Tangent", 6, 2, 7, 1),
    Sketcher.Constraint("Tangent", 7, 2, 4, 1),
    Sketcher.Constraint("Tangent", 8, 2, 9, 1),
    Sketcher.Constraint("Tangent", 9, 2, 10, 1),
    Sketcher.Constraint("Tangent", 10, 2, 11, 1),
    Sketcher.Constraint("Tangent", 11, 2, 8, 1),
    Sketcher.Constraint("Tangent", 12, 2, 13, 1),
    Sketcher.Constraint("Tangent", 13, 2, 14, 1),
    Sketcher.Constraint("Tangent", 14, 2, 15, 1),
    Sketcher.Constraint("Tangent", 15, 2, 12, 1),
    Sketcher.Constraint("Tangent", 16, 2, 17, 1),
    Sketcher.Constraint("Tangent", 17, 2, 18, 1),
    Sketcher.Constraint("Tangent", 18, 2, 19, 1),
    Sketcher.Constraint("Tangent", 19, 2, 16, 1),
    Sketcher.Constraint("Tangent", 20, 2, 21, 1),
    Sketcher.Constraint("Tangent", 21, 2, 22, 1),
    Sketcher.Constraint("Tangent", 22, 2, 23, 1),
    Sketcher.Constraint("Tangent", 23, 2, 20, 1),
    Sketcher.Constraint("Tangent", 24, 2, 25, 1),
    Sketcher.Constraint("Tangent", 25, 2, 26, 1),
    Sketcher.Constraint("Tangent", 26, 2, 27, 1),
    Sketcher.Constraint("Tangent", 27, 2, 24, 1),
    Sketcher.Constraint("Tangent", 28, 2, 29, 1),
    Sketcher.Constraint("Tangent", 29, 2, 30, 1),
    Sketcher.Constraint("Tangent", 30, 2, 31, 1),
    Sketcher.Constraint("Tangent", 31, 2, 28, 1),
    Sketcher.Constraint("Tangent", 32, 2, 33, 1),
    Sketcher.Constraint("Tangent", 33, 2, 34, 1),
    Sketcher.Constraint("Tangent", 34, 2, 35, 1),
    Sketcher.Constraint("Tangent", 35, 2, 32, 1),
    Sketcher.Constraint("Tangent", 36, 2, 37, 1),
    Sketcher.Constraint("Tangent", 37, 2, 38, 1),
    Sketcher.Constraint("Tangent", 38, 2, 39, 1),
    Sketcher.Constraint("Tangent", 39, 2, 36, 1),
    Sketcher.Constraint("Tangent", 40, 2, 41, 1),
    Sketcher.Constraint("Tangent", 41, 2, 42, 1),
    Sketcher.Constraint("Tangent", 42, 2, 43, 1),
    Sketcher.Constraint("Tangent", 43, 2, 40, 1),
    Sketcher.Constraint("Tangent", 44, 2, 45, 1),
    Sketcher.Constraint("Tangent", 45, 2, 46, 1),
    Sketcher.Constraint("Tangent", 46, 2, 47, 1),
    Sketcher.Constraint("Tangent", 47, 2, 44, 1),
    Sketcher.Constraint("Tangent", 48, 2, 49, 1),
    Sketcher.Constraint("Tangent", 49, 2, 50, 1),
    Sketcher.Constraint("Tangent", 50, 2, 51, 1),
    Sketcher.Constraint("Tangent", 51, 2, 48, 1),
    Sketcher.Constraint("Vertical", 0),
    Sketcher.Constraint("Horizontal", 1),
    Sketcher.Constraint("Vertical", 2),
    Sketcher.Constraint("Horizontal", 3),
    Sketcher.Constraint("Horizontal", 4),
    Sketcher.Constraint("Horizontal", 6),
    Sketcher.Constraint("Horizontal", 9),
    Sketcher.Constraint("Horizontal", 11),
    Sketcher.Constraint("Horizontal", 12),
    Sketcher.Constraint("Horizontal", 14),
    Sketcher.Constraint("Vertical", 17),
    Sketcher.Constraint("Vertical", 19),
    Sketcher.Constraint("Vertical", 20),
    Sketcher.Constraint("Vertical", 22),
    Sketcher.Constraint("Vertical", 24),
    Sketcher.Constraint("Vertical", 26),
    Sketcher.Constraint("Vertical", 29),
    Sketcher.Constraint("Vertical", 31),
    Sketcher.Constraint("Vertical", 33),
    Sketcher.Constraint("Vertical", 35),
    Sketcher.Constraint("Vertical", 37),
    Sketcher.Constraint("Vertical", 39),
    Sketcher.Constraint("Horizontal", 40),
    Sketcher.Constraint("Horizontal", 42),
    Sketcher.Constraint("Horizontal", 45),
    Sketcher.Constraint("Horizontal", 47),
    Sketcher.Constraint("Horizontal", 48),
    Sketcher.Constraint("Horizontal", 50),
    Sketcher.Constraint("Equal", 7, 8),
    Sketcher.Constraint("Equal", 10, 13),
    Sketcher.Constraint("Equal", 15, 16),
    Sketcher.Constraint("Equal", 18, 21),
    Sketcher.Constraint("Equal", 23, 25),
    Sketcher.Constraint("Equal", 27, 28),
    Sketcher.Constraint("Equal", 30, 32),
    Sketcher.Constraint("Equal", 34, 36),
    Sketcher.Constraint("Equal", 38, 41),
    Sketcher.Constraint("Equal", 43, 44),
    Sketcher.Constraint("Equal", 46, 49),
    Sketcher.Constraint("Symmetric", 27, 3, 28, 3, -1, 1),
    Sketcher.Constraint("Symmetric", 23, 3, 32, 3, -1, 1),
    Sketcher.Constraint("Symmetric", 16, 3, 36, 3, -1, 1),
    Sketcher.Constraint("Symmetric", 13, 3, 41, 3, -1, 1),
    Sketcher.Constraint("Symmetric", 8, 3, 44, 3, -1, 1),
    Sketcher.Constraint("Symmetric", 5, 3, 49, 3, -1, 1),
    Sketcher.Constraint("Symmetric", 0, 2, 2, 2, -1, 1),
    Sketcher.Constraint("Symmetric", 8, 3, 16, 3, -2),
    Sketcher.Constraint("Horizontal", 16, 3, 23, 3),
    Sketcher.Constraint("Horizontal", 23, 3, 27, 3),
    Sketcher.Constraint("Vertical", 7, 3, 8, 3),
    Sketcher.Constraint("Vertical", 8, 3, 15, 3),
    Sketcher.Constraint("Vertical", 18, 3, 43, 3),
    Sketcher.Constraint("Vertical", 44, 3, 51, 3),
    Sketcher.Constraint("Equal", 11, 45),
    Sketcher.Constraint("Equal", 3, 0),
    Sketcher.Constraint("Equal", 47, 17),
    Sketcher.Constraint("Equal", 42, 20),
    Sketcher.Constraint("Equal", 50, 24),
    Sketcher.Constraint("Equal", 26, 29),
    Sketcher.Constraint("Equal", 22, 33),
    Sketcher.Constraint("Equal", 19, 37),
    Sketcher.Constraint("Radius", 5, 3.5),
    Sketcher.Constraint("DistanceX", 1, 1, 1, 2, 190.0),
    Sketcher.Constraint("DistanceY", -1, 1, 4, 2, 41.0),
    Sketcher.Constraint("DistanceY", -1, 1, 8, 2, 11.0),
    Sketcher.Constraint("DistanceY", -1, 1, 12, 2, 26.0),
    Sketcher.Constraint("DistanceX", -1, 1, 16, 2, 11.0),
    Sketcher.Constraint("DistanceX", -1, 1, 20, 2, 26.0),
    Sketcher.Constraint("DistanceX", -1, 1, 24, 2, 41.0),
    Sketcher.Constraint("DistanceX", 4, 2, 4, 1, 15.478251),
    Sketcher.Constraint("DistanceX", 9, 2, 9, 1, 38.194639),
    Sketcher.Constraint("DistanceX", 12, 2, 12, 1, 31.653544),
])
pad1 = doc.addObject("PartDesign::Pad", "Pad")
body3.addObject(pad1)
pad1.Profile = sketch4
pad1.Length = 24
pad1.Midplane = True
body.Visibility = False

doc.recompute()
